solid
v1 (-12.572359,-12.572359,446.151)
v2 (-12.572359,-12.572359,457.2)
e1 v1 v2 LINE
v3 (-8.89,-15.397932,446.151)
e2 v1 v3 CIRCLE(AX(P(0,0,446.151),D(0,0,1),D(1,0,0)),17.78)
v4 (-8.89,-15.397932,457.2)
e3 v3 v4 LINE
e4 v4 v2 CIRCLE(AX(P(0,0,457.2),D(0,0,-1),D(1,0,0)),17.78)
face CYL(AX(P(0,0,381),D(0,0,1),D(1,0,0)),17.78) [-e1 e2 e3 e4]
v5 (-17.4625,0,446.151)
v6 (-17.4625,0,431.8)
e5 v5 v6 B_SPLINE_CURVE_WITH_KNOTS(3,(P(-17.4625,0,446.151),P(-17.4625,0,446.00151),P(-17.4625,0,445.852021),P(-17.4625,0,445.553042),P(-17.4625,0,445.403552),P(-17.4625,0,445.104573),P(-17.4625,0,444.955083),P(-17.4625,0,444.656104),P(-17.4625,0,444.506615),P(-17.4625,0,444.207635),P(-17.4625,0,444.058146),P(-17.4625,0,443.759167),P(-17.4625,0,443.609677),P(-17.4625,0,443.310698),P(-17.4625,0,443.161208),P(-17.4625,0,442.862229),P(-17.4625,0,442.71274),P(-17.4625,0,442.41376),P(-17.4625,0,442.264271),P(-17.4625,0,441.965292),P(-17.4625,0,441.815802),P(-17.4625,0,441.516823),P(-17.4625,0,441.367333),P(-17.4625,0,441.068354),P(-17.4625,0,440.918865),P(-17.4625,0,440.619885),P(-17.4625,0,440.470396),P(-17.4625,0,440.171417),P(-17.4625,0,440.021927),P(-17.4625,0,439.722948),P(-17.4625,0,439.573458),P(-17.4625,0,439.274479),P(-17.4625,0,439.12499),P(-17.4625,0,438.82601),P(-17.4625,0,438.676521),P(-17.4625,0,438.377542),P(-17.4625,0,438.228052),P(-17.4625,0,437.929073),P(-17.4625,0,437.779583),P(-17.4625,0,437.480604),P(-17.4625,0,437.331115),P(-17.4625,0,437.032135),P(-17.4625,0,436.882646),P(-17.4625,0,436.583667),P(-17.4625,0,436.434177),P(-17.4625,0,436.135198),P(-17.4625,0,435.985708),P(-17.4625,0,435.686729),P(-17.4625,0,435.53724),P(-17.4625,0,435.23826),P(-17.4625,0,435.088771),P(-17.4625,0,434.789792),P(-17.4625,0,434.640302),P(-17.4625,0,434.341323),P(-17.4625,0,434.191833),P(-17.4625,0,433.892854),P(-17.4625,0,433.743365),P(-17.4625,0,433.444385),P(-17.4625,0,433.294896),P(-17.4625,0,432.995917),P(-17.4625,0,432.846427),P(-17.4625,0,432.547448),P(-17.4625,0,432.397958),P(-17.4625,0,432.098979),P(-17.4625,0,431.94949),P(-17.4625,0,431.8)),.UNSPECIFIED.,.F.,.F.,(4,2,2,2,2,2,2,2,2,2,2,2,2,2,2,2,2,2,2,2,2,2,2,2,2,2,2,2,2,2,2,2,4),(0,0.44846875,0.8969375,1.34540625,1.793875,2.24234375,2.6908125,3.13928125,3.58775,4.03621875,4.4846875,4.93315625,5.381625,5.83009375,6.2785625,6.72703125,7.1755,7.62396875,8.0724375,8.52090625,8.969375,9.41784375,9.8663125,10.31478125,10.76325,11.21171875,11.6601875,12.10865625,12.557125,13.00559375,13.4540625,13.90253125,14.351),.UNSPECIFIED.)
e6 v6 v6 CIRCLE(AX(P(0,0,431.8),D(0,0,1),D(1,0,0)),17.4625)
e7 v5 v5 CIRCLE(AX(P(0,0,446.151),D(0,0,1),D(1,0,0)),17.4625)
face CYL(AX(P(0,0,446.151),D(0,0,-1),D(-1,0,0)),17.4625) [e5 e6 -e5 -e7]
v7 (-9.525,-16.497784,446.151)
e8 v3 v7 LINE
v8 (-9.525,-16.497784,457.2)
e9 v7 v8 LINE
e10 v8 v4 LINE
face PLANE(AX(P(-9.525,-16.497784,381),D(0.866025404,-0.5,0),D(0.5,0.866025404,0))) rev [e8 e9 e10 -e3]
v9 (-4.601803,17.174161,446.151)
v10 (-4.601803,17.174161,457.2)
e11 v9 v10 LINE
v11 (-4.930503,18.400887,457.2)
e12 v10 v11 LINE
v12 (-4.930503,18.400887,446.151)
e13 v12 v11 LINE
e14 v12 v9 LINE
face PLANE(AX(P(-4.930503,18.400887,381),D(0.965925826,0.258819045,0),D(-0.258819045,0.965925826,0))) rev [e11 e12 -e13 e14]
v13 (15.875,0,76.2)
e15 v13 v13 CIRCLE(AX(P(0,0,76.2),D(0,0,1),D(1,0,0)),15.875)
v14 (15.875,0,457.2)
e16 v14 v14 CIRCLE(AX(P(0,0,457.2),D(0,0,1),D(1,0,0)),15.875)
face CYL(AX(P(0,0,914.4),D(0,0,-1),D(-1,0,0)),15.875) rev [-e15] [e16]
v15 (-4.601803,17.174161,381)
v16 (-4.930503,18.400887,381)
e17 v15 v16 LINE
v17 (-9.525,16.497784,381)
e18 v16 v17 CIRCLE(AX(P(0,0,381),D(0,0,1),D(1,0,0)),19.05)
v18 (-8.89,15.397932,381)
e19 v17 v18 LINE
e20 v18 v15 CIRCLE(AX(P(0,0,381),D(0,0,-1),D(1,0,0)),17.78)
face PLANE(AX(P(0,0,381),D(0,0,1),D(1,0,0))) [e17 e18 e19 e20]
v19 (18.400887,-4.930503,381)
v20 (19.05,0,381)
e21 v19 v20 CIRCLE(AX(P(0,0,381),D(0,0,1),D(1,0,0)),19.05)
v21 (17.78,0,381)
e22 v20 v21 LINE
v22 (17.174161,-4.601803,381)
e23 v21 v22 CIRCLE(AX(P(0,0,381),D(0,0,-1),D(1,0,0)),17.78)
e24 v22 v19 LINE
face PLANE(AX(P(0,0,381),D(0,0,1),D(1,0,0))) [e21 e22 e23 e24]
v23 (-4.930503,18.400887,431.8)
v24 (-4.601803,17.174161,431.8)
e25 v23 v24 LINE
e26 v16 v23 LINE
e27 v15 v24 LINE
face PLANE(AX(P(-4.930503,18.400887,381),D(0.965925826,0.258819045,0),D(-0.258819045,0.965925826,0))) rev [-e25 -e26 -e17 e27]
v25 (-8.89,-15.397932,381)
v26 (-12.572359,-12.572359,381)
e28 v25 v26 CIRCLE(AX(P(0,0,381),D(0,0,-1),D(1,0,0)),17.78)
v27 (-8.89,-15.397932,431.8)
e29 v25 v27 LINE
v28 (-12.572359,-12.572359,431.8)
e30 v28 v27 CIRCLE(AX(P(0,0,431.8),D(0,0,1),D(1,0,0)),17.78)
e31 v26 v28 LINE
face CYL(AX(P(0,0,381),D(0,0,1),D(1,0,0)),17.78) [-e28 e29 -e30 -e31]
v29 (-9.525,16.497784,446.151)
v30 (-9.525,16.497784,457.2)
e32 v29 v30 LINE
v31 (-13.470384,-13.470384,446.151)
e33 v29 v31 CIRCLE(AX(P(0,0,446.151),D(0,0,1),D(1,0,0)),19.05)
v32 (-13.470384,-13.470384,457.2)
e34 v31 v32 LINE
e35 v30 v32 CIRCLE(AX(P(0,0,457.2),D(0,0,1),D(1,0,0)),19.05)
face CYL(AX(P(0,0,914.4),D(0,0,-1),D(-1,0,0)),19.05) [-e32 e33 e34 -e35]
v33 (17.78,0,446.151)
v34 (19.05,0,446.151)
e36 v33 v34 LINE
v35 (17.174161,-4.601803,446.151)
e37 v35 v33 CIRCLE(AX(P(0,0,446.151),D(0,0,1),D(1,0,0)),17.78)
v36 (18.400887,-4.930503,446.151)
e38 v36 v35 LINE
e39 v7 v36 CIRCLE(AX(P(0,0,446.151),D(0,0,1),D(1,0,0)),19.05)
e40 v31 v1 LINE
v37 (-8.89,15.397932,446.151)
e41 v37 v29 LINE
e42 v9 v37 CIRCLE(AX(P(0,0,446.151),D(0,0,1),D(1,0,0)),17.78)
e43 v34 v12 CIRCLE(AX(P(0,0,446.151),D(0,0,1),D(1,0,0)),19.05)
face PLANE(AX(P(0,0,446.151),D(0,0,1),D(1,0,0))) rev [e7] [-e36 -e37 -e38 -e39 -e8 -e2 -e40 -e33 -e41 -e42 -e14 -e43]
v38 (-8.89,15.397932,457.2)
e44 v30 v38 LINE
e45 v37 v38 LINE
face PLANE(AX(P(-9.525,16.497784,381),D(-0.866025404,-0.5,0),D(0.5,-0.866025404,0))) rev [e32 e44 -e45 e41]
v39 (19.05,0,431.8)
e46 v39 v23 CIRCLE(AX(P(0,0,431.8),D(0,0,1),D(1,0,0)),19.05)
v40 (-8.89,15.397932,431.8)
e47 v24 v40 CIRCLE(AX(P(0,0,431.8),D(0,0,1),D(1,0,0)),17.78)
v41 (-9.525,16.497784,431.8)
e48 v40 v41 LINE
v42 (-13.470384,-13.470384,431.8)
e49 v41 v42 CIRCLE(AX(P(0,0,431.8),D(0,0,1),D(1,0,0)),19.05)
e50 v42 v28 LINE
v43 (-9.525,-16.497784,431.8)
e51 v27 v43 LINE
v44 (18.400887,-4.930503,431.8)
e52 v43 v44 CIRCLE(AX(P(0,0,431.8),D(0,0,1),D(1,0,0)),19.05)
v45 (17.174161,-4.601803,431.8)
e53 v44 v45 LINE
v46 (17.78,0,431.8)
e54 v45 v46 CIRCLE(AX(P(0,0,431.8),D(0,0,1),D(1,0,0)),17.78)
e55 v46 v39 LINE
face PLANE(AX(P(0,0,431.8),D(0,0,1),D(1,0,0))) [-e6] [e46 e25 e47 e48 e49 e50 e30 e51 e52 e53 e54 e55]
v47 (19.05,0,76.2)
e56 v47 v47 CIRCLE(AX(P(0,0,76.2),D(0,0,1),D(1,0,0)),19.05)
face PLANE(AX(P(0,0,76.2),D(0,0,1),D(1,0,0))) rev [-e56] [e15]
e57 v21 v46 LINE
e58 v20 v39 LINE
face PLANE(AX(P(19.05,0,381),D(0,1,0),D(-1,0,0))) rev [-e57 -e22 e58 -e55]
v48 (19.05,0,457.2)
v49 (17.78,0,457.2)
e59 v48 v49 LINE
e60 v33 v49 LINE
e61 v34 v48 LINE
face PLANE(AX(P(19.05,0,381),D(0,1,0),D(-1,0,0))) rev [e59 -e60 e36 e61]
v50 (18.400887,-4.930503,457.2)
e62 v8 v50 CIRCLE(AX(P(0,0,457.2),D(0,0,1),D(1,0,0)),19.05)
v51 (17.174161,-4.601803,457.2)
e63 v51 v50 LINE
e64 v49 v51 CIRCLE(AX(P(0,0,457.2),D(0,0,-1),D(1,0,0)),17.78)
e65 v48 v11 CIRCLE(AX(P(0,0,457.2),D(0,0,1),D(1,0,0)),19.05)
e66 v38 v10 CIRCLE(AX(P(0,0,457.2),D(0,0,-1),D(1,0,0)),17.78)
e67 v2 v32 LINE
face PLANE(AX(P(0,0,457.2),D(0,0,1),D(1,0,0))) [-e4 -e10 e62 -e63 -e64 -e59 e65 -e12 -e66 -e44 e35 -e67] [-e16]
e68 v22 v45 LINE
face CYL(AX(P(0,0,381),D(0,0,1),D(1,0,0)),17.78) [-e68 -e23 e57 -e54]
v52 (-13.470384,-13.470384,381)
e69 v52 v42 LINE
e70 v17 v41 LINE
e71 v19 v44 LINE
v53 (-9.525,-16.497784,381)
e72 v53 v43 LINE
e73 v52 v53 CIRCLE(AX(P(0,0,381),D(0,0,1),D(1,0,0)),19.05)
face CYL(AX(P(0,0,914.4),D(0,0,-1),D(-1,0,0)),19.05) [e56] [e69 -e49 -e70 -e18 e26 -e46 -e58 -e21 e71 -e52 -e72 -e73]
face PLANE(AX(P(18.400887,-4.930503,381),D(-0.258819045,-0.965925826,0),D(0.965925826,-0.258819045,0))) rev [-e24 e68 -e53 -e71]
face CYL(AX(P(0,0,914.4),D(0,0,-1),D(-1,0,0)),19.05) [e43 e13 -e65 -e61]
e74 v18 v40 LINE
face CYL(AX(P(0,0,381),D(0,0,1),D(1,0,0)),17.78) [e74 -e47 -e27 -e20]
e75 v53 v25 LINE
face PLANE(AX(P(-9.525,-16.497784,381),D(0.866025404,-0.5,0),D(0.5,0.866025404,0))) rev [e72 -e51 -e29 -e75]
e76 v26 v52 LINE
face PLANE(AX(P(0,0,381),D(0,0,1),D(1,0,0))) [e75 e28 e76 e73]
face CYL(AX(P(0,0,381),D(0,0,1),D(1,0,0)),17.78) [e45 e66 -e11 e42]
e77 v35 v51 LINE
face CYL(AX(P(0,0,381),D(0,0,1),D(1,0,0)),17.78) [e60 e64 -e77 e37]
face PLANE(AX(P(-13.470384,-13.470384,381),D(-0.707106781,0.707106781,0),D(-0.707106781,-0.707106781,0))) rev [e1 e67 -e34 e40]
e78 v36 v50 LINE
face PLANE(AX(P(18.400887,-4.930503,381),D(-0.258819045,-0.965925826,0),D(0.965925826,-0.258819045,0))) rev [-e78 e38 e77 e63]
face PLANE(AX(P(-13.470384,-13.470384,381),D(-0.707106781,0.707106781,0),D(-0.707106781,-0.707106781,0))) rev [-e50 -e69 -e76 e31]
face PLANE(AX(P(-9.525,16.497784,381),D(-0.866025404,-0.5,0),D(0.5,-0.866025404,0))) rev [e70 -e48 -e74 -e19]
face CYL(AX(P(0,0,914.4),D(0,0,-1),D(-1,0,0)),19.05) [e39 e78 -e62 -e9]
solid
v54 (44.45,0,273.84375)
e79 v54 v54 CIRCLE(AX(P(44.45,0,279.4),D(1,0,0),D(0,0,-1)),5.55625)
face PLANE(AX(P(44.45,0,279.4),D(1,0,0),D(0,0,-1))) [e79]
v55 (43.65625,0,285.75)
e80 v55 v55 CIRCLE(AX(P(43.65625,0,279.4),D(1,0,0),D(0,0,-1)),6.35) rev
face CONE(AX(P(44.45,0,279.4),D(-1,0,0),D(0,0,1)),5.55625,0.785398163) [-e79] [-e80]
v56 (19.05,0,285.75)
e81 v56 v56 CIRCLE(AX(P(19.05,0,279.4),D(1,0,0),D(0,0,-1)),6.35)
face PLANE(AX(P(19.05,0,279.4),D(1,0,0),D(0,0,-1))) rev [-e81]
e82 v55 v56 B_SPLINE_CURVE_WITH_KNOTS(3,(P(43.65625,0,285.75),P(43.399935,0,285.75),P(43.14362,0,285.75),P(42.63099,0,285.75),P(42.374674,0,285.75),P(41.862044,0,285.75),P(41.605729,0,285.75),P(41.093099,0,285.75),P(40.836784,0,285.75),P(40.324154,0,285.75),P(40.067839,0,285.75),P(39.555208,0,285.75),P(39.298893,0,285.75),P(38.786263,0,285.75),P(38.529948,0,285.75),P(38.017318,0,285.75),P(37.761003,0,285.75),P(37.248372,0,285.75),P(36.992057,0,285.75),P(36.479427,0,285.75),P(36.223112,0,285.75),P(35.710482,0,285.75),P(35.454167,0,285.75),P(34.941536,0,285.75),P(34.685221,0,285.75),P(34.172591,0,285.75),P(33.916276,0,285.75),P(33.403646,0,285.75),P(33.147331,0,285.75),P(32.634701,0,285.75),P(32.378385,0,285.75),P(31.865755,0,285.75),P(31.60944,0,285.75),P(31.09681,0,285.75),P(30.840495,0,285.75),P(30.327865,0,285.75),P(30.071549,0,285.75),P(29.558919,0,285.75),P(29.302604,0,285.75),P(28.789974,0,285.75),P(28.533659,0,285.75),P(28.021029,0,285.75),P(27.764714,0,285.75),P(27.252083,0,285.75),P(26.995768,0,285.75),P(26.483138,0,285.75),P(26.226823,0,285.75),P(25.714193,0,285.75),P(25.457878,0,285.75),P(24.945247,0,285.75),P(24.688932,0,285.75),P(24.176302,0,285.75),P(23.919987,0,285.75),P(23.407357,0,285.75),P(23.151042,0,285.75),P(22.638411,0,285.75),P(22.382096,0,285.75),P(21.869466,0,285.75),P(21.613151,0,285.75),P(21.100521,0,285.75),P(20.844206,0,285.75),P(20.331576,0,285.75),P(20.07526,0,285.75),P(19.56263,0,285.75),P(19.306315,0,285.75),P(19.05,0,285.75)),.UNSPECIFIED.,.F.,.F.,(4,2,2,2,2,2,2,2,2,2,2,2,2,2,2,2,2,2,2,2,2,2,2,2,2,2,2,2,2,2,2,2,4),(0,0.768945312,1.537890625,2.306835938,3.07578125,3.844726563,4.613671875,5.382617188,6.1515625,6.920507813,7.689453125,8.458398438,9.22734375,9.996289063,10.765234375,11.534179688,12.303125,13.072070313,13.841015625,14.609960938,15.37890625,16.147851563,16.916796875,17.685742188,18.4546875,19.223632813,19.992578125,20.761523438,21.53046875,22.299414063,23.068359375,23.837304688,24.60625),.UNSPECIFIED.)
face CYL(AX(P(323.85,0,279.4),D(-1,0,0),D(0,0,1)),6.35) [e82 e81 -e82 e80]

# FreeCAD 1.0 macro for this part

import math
import FreeCAD as App
import Part
import Sketcher
from FreeCAD import Vector
Q = App.Units.Quantity


def edges_at(feature, points):
    """Names of the edges that pass closest to the given points."""
    edges = feature.Shape.Edges
    near = lambda p: min(range(len(edges)), key=lambda i: edges[i].distToShape(Part.Vertex(*p))[0])
    return sorted({f"Edge{near(p) + 1}" for p in points})

doc = App.newDocument("Part")
params = doc.addObject("Spreadsheet::Sheet", "Params")
for row, (alias, value) in enumerate([
    ("sketch1_diameter", "1.5 in"),
    ("sketch1_diameter2", "1.25 in"),
    ("pad1_length", "36 in"),
    ("sketch2_diameter", "1.5 in"),
    ("pocket1_length", "3 in"),
    ("sketch3_diameter", "1.5 in"),
    ("pocket2_length", "18 in"),
    ("sketch4_radius", "0.7 in"),
    ("sketch4_radius2", "0.75 in"),
    ("pocket3_length", "3 in"),
    ("sketch5_diameter", "1.5 in"),
    ("sketch5_diameter2", "1.375 in"),
    ("pocket4_length", "0.565 in"),
    ("sketch6_diameter", "0.5 in"),
    ("pad2_length", "12 in"),
    ("sketch7_diameter", "0.5 in"),
    ("pocket5_length", "11 in"),
    ("chamfer_size", "0.03125 in"),
], start=1):
    params.set(f"A{row}", alias)
    params.set(f"B{row}", "=" + value)
    params.setAlias(f"B{row}", alias)

body = doc.addObject("PartDesign::Body", "Body")

# Sketch on XY plane
sketch1 = body.newObject("Sketcher::SketchObject", "Sketch")
sketch1.AttachmentSupport = (doc.getObject("XY_Plane"), [""])
sketch1.MapMode = "FlatFace"
sketch1.addGeometry([
    Part.Circle(Vector(0, 0, 0), Vector(0, 0, 1), 19),
    Part.Circle(Vector(0, 0, 0), Vector(0, 0, 1), 16),
], False)
sketch1.addConstraint([
    Sketcher.Constraint("Coincident", 0, 3, -1, 1),
    Sketcher.Constraint("Coincident", 1, 3, -1, 1),
    Sketcher.Constraint("Diameter", 0, Q("1.5 in")),
    Sketcher.Constraint("Diameter", 1, Q("1.25 in")),
])
sketch1.setExpression("Constraints[2]", "Params.sketch1_diameter")
sketch1.setExpression("Constraints[3]", "Params.sketch1_diameter2")
pad1 = body.newObject("PartDesign::Pad", "Pad")
pad1.Profile = sketch1
pad1.setExpression("Length", "Params.pad1_length")

# Sketch on XY plane
sketch2 = body.newObject("Sketcher::SketchObject", "Sketch001")
sketch2.AttachmentSupport = (doc.getObject("XY_Plane"), [""])
sketch2.MapMode = "FlatFace"
sketch2.addGeometry(Part.Circle(Vector(0, 0, 0), Vector(0, 0, 1), 19), False)
sketch2.addConstraint([
    Sketcher.Constraint("Coincident", 0, 3, -1, 1),
    Sketcher.Constraint("Diameter", 0, Q("1.5 in")),
])
sketch2.setExpression("Constraints[1]", "Params.sketch2_diameter")
pocket1 = body.newObject("PartDesign::Pocket", "Pocket")
pocket1.Profile = sketch2
pocket1.setExpression("Length", "Params.pocket1_length")
pocket1.Reversed = True

# Sketch on XY plane
sketch3 = body.newObject("Sketcher::SketchObject", "Sketch002")
sketch3.AttachmentSupport = (doc.getObject("XY_Plane"), [""])
sketch3.MapMode = "FlatFace"
sketch3.AttachmentOffset = App.Placement(Vector(0, 0, 18 * 25.4), App.Rotation())
sketch3.addGeometry(Part.Circle(Vector(0, 0, 0), Vector(0, 0, 1), 19), False)
sketch3.addConstraint([
    Sketcher.Constraint("Coincident", 0, 3, -1, 1),
    Sketcher.Constraint("Diameter", 0, Q("1.5 in")),
])
sketch3.setExpression("Constraints[1]", "Params.sketch3_diameter")
pocket2 = body.newObject("PartDesign::Pocket", "Pocket001")
pocket2.Profile = sketch3
pocket2.setExpression("Length", "Params.pocket2_length")
pocket2.Reversed = True

# Sketch on XY plane
sketch4 = body.newObject("Sketcher::SketchObject", "Sketch003")
sketch4.AttachmentSupport = (doc.getObject("XY_Plane"), [""])
sketch4.MapMode = "FlatFace"
sketch4.AttachmentOffset = App.Placement(Vector(0, 0, 15 * 25.4), App.Rotation())
sketch4.addGeometry([
    Part.LineSegment(Vector(19.1, 0, 0), Vector(17.8, 0, 0)),  # 0
    Part.ArcOfCircle(Part.Circle(Vector(0, 0, 0), Vector(0, 0, 1), 17.8), math.radians(-15), math.radians(0)),  # 1
    Part.LineSegment(Vector(17.2, -4.6, 0), Vector(18.4, -4.9, 0)),  # 2
    Part.ArcOfCircle(Part.Circle(Vector(0, 0, 0), Vector(0, 0, 1), 19.1), math.radians(-15), math.radians(0)),  # 3
    Part.LineSegment(Vector(-9.5, -16.5, 0), Vector(-8.9, -15.4, 0)),  # 4
    Part.ArcOfCircle(Part.Circle(Vector(0, 0, 0), Vector(0, 0, 1), 17.8), math.radians(-135), math.radians(-120)),  # 5
    Part.LineSegment(Vector(-12.6, -12.6, 0), Vector(-13.5, -13.5, 0)),  # 6
    Part.ArcOfCircle(Part.Circle(Vector(0, 0, 0), Vector(0, 0, 1), 19), math.radians(-135), math.radians(-120)),  # 7
    Part.LineSegment(Vector(-9.5, 16.5, 0), Vector(-8.9, 15.4, 0)),  # 8
    Part.ArcOfCircle(Part.Circle(Vector(0, 0, 0), Vector(0, 0, 1), 17.8), math.radians(105), math.radians(120)),  # 9
    Part.LineSegment(Vector(-4.6, 17.2, 0), Vector(-4.9, 18.4, 0)),  # 10
    Part.ArcOfCircle(Part.Circle(Vector(0, 0, 0), Vector(0, 0, 1), 19.1), math.radians(105), math.radians(120)),  # 11
], False)
sketch4.addConstraint([
    Sketcher.Constraint("Coincident", 0, 2, 1, 2),
    Sketcher.Constraint("Coincident", 1, 1, 2, 1),
    Sketcher.Constraint("Coincident", 2, 2, 3, 1),
    Sketcher.Constraint("Coincident", 3, 2, 0, 1),
    Sketcher.Constraint("Coincident", 4, 2, 5, 2),
    Sketcher.Constraint("Coincident", 5, 1, 6, 1),
    Sketcher.Constraint("Coincident", 6, 2, 7, 1),
    Sketcher.Constraint("Coincident", 7, 2, 4, 1),
    Sketcher.Constraint("Coincident", 8, 2, 9, 2),
    Sketcher.Constraint("Coincident", 9, 1, 10, 1),
    Sketcher.Constraint("Coincident", 10, 2, 11, 1),
    Sketcher.Constraint("Coincident", 11, 2, 8, 1),
    Sketcher.Constraint("Horizontal", 0),
    Sketcher.Constraint("Coincident", 1, 3, -1, 1),
    Sketcher.Constraint("Coincident", 3, 3, -1, 1),
    Sketcher.Constraint("Coincident", 5, 3, -1, 1),
    Sketcher.Constraint("Coincident", 7, 3, -1, 1),
    Sketcher.Constraint("Coincident", 9, 3, -1, 1),
    Sketcher.Constraint("Coincident", 11, 3, -1, 1),
    Sketcher.Constraint("Equal", 1, 5),
    Sketcher.Constraint("Equal", 3, 7),
    Sketcher.Constraint("Equal", 5, 9),
    Sketcher.Constraint("Equal", 7, 11),
    Sketcher.Constraint("PointOnObject", 0, 2, -1),
    Sketcher.Constraint("Vertical", 4, 2, 8, 2),
    Sketcher.Constraint("Vertical", 7, 2, 11, 2),
    Sketcher.Constraint("Radius", 1, Q("0.7 in")),
    Sketcher.Constraint("Radius", 3, Q("0.75 in")),
    Sketcher.Constraint("Angle", 2, Q("-15 deg")),
    Sketcher.Constraint("Angle", 4, Q("60 deg")),
    Sketcher.Constraint("Angle", 6, Q("-135 deg")),
    Sketcher.Constraint("Angle", 10, Q("105 deg")),
    Sketcher.Constraint("DistanceX", 4, 2, -1, 1, Q("0.35 in")),
    Sketcher.Constraint("DistanceY", 7, 2, 6, 2, 3.0274),
    Sketcher.Constraint("DistanceX", -1, 1, 1, 1, 17.174161),
    Sketcher.Constraint("DistanceY", -1, 1, 9, 1, 17.174161),
])
sketch4.setExpression("Constraints[26]", "Params.sketch4_radius")
sketch4.setExpression("Constraints[27]", "Params.sketch4_radius2")
pocket3 = body.newObject("PartDesign::Pocket", "Pocket002")
pocket3.Profile = sketch4
pocket3.setExpression("Length", "Params.pocket3_length")
pocket3.Reversed = True

# Sketch on XY plane
sketch5 = body.newObject("Sketcher::SketchObject", "Sketch004")
sketch5.AttachmentSupport = (doc.getObject("XY_Plane"), [""])
sketch5.MapMode = "FlatFace"
sketch5.AttachmentOffset = App.Placement(Vector(0, 0, 17 * 25.4), App.Rotation())
sketch5.addGeometry([
    Part.Circle(Vector(0, 0, 0), Vector(0, 0, 1), 19),
    Part.Circle(Vector(0, 0, 0), Vector(0, 0, 1), 17),
], False)
sketch5.addConstraint([
    Sketcher.Constraint("Coincident", 0, 3, -1, 1),
    Sketcher.Constraint("Coincident", 1, 3, -1, 1),
    Sketcher.Constraint("Diameter", 0, Q("1.5 in")),
    Sketcher.Constraint("Diameter", 1, Q("1.375 in")),
])
sketch5.setExpression("Constraints[2]", "Params.sketch5_diameter")
sketch5.setExpression("Constraints[3]", "Params.sketch5_diameter2")
pocket4 = body.newObject("PartDesign::Pocket", "Pocket003")
pocket4.Profile = sketch5
pocket4.setExpression("Length", "Params.pocket4_length")
pocket4.Reversed = True
body2 = doc.addObject("PartDesign::Body", "Body001")

# Sketch on YZ plane
sketch6 = body2.newObject("Sketcher::SketchObject", "Sketch005")
sketch6.AttachmentSupport = (doc.getObject("YZ_Plane001"), [""])
sketch6.MapMode = "FlatFace"
sketch6.AttachmentOffset = App.Placement(Vector(0, 0, 0.75 * 25.4), App.Rotation())
sketch6.addGeometry(Part.Circle(Vector(0, 279, 0), Vector(0, 0, 1), 6), False)
sketch6.addConstraint([
    Sketcher.Constraint("PointOnObject", 0, 3, -2),
    Sketcher.Constraint("Diameter", 0, Q("0.5 in")),
    Sketcher.Constraint("DistanceY", -1, 1, 0, 3, Q("11 in")),
])
sketch6.setExpression("Constraints[1]", "Params.sketch6_diameter")
pad2 = body2.newObject("PartDesign::Pad", "Pad001")
pad2.Profile = sketch6
pad2.setExpression("Length", "Params.pad2_length")

# Sketch on YZ plane
sketch7 = body2.newObject("Sketcher::SketchObject", "Sketch006")
sketch7.AttachmentSupport = (doc.getObject("YZ_Plane001"), [""])
sketch7.MapMode = "FlatFace"
sketch7.AttachmentOffset = App.Placement(Vector(0, 0, 12.75 * 25.4), App.Rotation())
sketch7.addGeometry(Part.Circle(Vector(0, 279, 0), Vector(0, 0, 1), 6), False)
sketch7.addConstraint([
    Sketcher.Constraint("PointOnObject", 0, 3, -2),
    Sketcher.Constraint("Diameter", 0, Q("0.5 in")),
    Sketcher.Constraint("DistanceY", -1, 1, 0, 3, Q("11 in")),
])
sketch7.setExpression("Constraints[1]", "Params.sketch7_diameter")
pocket5 = body2.newObject("PartDesign::Pocket", "Pocket004")
pocket5.Profile = sketch7
pocket5.setExpression("Length", "Params.pocket5_length")
doc.recompute()

chamfer = body2.newObject("PartDesign::Chamfer", "Chamfer")
chamfer.Base = (pocket5, edges_at(pocket5, [(44.45, 0, 273.05)]))
chamfer.setExpression("Size", "Params.chamfer_size")

doc.recompute()
